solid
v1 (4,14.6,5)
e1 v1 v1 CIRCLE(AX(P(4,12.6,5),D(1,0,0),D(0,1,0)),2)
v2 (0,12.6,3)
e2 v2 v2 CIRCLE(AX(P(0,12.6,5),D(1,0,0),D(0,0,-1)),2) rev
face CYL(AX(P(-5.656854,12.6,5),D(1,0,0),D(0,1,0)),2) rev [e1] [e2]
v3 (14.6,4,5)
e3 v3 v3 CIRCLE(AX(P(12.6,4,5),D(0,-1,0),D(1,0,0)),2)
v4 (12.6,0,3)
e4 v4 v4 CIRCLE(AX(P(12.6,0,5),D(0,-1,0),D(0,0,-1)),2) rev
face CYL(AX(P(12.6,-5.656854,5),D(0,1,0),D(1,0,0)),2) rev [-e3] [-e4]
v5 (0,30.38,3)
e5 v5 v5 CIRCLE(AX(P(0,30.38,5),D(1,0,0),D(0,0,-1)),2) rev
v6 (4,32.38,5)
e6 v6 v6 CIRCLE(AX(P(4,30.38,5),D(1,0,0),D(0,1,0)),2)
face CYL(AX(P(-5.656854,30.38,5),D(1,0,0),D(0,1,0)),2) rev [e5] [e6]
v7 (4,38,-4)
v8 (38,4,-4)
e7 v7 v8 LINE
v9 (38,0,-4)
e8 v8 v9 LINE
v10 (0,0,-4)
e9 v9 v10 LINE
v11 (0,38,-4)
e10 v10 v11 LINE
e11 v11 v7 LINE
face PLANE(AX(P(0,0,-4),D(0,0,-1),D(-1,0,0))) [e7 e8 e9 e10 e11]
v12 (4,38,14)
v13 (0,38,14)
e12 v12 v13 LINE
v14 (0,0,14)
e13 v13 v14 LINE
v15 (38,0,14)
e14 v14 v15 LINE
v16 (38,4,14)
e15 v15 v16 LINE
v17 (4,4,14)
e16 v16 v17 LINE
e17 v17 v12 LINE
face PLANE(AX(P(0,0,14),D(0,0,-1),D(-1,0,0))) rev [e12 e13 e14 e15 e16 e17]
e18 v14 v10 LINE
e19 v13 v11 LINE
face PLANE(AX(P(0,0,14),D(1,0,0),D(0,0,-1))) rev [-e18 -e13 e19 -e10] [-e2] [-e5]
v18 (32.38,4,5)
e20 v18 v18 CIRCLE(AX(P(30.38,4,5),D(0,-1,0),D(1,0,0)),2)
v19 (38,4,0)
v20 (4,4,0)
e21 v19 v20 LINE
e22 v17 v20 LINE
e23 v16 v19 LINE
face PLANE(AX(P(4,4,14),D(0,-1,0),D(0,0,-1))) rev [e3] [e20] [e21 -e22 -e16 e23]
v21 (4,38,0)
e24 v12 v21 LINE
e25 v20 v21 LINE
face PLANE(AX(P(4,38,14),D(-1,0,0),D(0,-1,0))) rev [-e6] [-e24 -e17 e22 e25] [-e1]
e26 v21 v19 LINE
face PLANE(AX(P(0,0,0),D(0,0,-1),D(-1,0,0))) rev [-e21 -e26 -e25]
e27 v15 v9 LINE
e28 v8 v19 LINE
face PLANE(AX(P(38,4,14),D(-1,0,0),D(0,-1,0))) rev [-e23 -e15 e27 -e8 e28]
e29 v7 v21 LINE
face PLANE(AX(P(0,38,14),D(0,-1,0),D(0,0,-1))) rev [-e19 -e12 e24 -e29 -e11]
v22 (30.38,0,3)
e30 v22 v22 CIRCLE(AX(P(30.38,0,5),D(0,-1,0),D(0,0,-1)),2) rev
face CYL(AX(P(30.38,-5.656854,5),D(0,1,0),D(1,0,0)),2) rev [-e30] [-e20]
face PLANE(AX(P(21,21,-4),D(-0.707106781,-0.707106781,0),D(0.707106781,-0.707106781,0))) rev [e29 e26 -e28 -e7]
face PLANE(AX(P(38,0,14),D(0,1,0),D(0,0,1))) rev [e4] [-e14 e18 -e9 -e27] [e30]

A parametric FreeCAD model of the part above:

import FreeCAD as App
import Part
import Sketcher
from FreeCAD import Vector

doc = App.newDocument("Part")
body = doc.addObject("PartDesign::Body", "Body")

# Sketch on XY plane
sketch1 = body.newObject("Sketcher::SketchObject", "Sketch")
sketch1.AttachmentSupport = (doc.getObject("XY_Plane"), [""])
sketch1.MapMode = "FlatFace"
sketch1.addGeometry(Part.LineSegment(Vector(0, 38, 0), Vector(0, 0, 0)), False)
sketch1.addGeometry(Part.LineSegment(Vector(0, 0, 0), Vector(38, 0, 0)), False)
sketch1.addGeometry(Part.LineSegment(Vector(38, 0, 0), Vector(38, 4, 0)), False)
sketch1.addGeometry(Part.LineSegment(Vector(38, 4, 0), Vector(4, 4, 0)), False)
sketch1.addGeometry(Part.LineSegment(Vector(4, 4, 0), Vector(4, 38, 0)), False)
sketch1.addGeometry(Part.LineSegment(Vector(4, 38, 0), Vector(0, 38, 0)), False)
sketch1.addConstraint(Sketcher.Constraint("Coincident", 0, 2, 1, 1))
sketch1.addConstraint(Sketcher.Constraint("Coincident", 1, 2, 2, 1))
sketch1.addConstraint(Sketcher.Constraint("Coincident", 2, 2, 3, 1))
sketch1.addConstraint(Sketcher.Constraint("Coincident", 3, 2, 4, 1))
sketch1.addConstraint(Sketcher.Constraint("Coincident", 4, 2, 5, 1))
sketch1.addConstraint(Sketcher.Constraint("Coincident", 5, 2, 0, 1))
sketch1.addConstraint(Sketcher.Constraint("Vertical", 0))
sketch1.addConstraint(Sketcher.Constraint("Horizontal", 1))
sketch1.addConstraint(Sketcher.Constraint("Vertical", 2))
sketch1.addConstraint(Sketcher.Constraint("Horizontal", 3))
sketch1.addConstraint(Sketcher.Constraint("Vertical", 4))
sketch1.addConstraint(Sketcher.Constraint("Horizontal", 5))
sketch1.addConstraint(Sketcher.Constraint("Coincident", 0, 2, -1, 1))
sketch1.addConstraint(Sketcher.Constraint("Equal", 1, 0))
sketch1.addConstraint(Sketcher.Constraint("Equal", 5, 2))
sketch1.addConstraint(Sketcher.Constraint("DistanceX", 1, 1, 1, 2, 38.0))
sketch1.addConstraint(Sketcher.Constraint("DistanceX", 3, 2, 3, 1, 34.0))
pad1 = body.newObject("PartDesign::Pad", "Pad")
pad1.Profile = sketch1
pad1.Length = 14

# Sketch on XY plane
sketch2 = body.newObject("Sketcher::SketchObject", "Sketch001")
sketch2.AttachmentSupport = (doc.getObject("XY_Plane"), [""])
sketch2.MapMode = "FlatFace"
sketch2.addGeometry(Part.LineSegment(Vector(4, 38, 0), Vector(38, 4, 0)), False)
sketch2.addGeometry(Part.LineSegment(Vector(38, 4, 0), Vector(38, 0, 0)), False)
sketch2.addGeometry(Part.LineSegment(Vector(38, 0, 0), Vector(0, 0, 0)), False)
sketch2.addGeometry(Part.LineSegment(Vector(0, 0, 0), Vector(0, 38, 0)), False)
sketch2.addGeometry(Part.LineSegment(Vector(0, 38, 0), Vector(4, 38, 0)), False)
sketch2.addConstraint(Sketcher.Constraint("Coincident", 0, 2, 1, 1))
sketch2.addConstraint(Sketcher.Constraint("Coincident", 1, 2, 2, 1))
sketch2.addConstraint(Sketcher.Constraint("Coincident", 2, 2, 3, 1))
sketch2.addConstraint(Sketcher.Constraint("Coincident", 3, 2, 4, 1))
sketch2.addConstraint(Sketcher.Constraint("Coincident", 4, 2, 0, 1))
sketch2.addConstraint(Sketcher.Constraint("Vertical", 1))
sketch2.addConstraint(Sketcher.Constraint("Horizontal", 2))
sketch2.addConstraint(Sketcher.Constraint("Vertical", 3))
sketch2.addConstraint(Sketcher.Constraint("Horizontal", 4))
sketch2.addConstraint(Sketcher.Constraint("Coincident", 2, 2, -1, 1))
sketch2.addConstraint(Sketcher.Constraint("Equal", 4, 1))
sketch2.addConstraint(Sketcher.Constraint("Equal", 2, 3))
sketch2.addConstraint(Sketcher.Constraint("DistanceX", 2, 2, 2, 1, 38.0))
sketch2.addConstraint(Sketcher.Constraint("DistanceX", 4, 1, 4, 2, 4.0))
pad2 = body.newObject("PartDesign::Pad", "Pad001")
pad2.Profile = sketch2
pad2.Length = 4
pad2.Reversed = True

# Sketch on YZ plane
sketch3 = body.newObject("Sketcher::SketchObject", "Sketch002")
sketch3.AttachmentSupport = (doc.getObject("YZ_Plane"), [""])
sketch3.MapMode = "FlatFace"
sketch3.AttachmentOffset = App.Placement(Vector(0, 0, 4), App.Rotation())
sketch3.addGeometry(Part.Circle(Vector(30.4, 5, 0), Vector(0, 0, 1), 2), False)
sketch3.addGeometry(Part.Circle(Vector(12.6, 5, 0), Vector(0, 0, 1), 2), False)
sketch3.addConstraint(Sketcher.Constraint("Equal", 0, 1))
sketch3.addConstraint(Sketcher.Constraint("Horizontal", 0, 3, 1, 3))
sketch3.addConstraint(Sketcher.Constraint("Diameter", 0, 4.0))
sketch3.addConstraint(Sketcher.Constraint("DistanceY", -1, 1, 0, 3, 5.0))
sketch3.addConstraint(Sketcher.Constraint("DistanceX", -1, 1, 1, 3, 12.6))
sketch3.addConstraint(Sketcher.Constraint("DistanceX", -1, 1, 0, 3, 30.38))
pocket1 = body.newObject("PartDesign::Pocket", "Pocket")
pocket1.Profile = sketch3
pocket1.Length = 4
doc.recompute()

datumplane = body.newObject("PartDesign::Plane", "DatumPlane")
datumplane.Placement = App.Placement(Vector(0, 0, 0), App.Rotation(Vector(-0.707106781, -0.707106781, 0), Vector(0, 0, -1), Vector(0.707106781, -0.707106781, 0), "ZXY"))
mirrored = body.newObject("PartDesign::Mirrored", "Mirrored")
mirrored.Originals = [pocket1]
mirrored.MirrorPlane = (datumplane, [""])
body.Tip = mirrored

doc.recompute()
